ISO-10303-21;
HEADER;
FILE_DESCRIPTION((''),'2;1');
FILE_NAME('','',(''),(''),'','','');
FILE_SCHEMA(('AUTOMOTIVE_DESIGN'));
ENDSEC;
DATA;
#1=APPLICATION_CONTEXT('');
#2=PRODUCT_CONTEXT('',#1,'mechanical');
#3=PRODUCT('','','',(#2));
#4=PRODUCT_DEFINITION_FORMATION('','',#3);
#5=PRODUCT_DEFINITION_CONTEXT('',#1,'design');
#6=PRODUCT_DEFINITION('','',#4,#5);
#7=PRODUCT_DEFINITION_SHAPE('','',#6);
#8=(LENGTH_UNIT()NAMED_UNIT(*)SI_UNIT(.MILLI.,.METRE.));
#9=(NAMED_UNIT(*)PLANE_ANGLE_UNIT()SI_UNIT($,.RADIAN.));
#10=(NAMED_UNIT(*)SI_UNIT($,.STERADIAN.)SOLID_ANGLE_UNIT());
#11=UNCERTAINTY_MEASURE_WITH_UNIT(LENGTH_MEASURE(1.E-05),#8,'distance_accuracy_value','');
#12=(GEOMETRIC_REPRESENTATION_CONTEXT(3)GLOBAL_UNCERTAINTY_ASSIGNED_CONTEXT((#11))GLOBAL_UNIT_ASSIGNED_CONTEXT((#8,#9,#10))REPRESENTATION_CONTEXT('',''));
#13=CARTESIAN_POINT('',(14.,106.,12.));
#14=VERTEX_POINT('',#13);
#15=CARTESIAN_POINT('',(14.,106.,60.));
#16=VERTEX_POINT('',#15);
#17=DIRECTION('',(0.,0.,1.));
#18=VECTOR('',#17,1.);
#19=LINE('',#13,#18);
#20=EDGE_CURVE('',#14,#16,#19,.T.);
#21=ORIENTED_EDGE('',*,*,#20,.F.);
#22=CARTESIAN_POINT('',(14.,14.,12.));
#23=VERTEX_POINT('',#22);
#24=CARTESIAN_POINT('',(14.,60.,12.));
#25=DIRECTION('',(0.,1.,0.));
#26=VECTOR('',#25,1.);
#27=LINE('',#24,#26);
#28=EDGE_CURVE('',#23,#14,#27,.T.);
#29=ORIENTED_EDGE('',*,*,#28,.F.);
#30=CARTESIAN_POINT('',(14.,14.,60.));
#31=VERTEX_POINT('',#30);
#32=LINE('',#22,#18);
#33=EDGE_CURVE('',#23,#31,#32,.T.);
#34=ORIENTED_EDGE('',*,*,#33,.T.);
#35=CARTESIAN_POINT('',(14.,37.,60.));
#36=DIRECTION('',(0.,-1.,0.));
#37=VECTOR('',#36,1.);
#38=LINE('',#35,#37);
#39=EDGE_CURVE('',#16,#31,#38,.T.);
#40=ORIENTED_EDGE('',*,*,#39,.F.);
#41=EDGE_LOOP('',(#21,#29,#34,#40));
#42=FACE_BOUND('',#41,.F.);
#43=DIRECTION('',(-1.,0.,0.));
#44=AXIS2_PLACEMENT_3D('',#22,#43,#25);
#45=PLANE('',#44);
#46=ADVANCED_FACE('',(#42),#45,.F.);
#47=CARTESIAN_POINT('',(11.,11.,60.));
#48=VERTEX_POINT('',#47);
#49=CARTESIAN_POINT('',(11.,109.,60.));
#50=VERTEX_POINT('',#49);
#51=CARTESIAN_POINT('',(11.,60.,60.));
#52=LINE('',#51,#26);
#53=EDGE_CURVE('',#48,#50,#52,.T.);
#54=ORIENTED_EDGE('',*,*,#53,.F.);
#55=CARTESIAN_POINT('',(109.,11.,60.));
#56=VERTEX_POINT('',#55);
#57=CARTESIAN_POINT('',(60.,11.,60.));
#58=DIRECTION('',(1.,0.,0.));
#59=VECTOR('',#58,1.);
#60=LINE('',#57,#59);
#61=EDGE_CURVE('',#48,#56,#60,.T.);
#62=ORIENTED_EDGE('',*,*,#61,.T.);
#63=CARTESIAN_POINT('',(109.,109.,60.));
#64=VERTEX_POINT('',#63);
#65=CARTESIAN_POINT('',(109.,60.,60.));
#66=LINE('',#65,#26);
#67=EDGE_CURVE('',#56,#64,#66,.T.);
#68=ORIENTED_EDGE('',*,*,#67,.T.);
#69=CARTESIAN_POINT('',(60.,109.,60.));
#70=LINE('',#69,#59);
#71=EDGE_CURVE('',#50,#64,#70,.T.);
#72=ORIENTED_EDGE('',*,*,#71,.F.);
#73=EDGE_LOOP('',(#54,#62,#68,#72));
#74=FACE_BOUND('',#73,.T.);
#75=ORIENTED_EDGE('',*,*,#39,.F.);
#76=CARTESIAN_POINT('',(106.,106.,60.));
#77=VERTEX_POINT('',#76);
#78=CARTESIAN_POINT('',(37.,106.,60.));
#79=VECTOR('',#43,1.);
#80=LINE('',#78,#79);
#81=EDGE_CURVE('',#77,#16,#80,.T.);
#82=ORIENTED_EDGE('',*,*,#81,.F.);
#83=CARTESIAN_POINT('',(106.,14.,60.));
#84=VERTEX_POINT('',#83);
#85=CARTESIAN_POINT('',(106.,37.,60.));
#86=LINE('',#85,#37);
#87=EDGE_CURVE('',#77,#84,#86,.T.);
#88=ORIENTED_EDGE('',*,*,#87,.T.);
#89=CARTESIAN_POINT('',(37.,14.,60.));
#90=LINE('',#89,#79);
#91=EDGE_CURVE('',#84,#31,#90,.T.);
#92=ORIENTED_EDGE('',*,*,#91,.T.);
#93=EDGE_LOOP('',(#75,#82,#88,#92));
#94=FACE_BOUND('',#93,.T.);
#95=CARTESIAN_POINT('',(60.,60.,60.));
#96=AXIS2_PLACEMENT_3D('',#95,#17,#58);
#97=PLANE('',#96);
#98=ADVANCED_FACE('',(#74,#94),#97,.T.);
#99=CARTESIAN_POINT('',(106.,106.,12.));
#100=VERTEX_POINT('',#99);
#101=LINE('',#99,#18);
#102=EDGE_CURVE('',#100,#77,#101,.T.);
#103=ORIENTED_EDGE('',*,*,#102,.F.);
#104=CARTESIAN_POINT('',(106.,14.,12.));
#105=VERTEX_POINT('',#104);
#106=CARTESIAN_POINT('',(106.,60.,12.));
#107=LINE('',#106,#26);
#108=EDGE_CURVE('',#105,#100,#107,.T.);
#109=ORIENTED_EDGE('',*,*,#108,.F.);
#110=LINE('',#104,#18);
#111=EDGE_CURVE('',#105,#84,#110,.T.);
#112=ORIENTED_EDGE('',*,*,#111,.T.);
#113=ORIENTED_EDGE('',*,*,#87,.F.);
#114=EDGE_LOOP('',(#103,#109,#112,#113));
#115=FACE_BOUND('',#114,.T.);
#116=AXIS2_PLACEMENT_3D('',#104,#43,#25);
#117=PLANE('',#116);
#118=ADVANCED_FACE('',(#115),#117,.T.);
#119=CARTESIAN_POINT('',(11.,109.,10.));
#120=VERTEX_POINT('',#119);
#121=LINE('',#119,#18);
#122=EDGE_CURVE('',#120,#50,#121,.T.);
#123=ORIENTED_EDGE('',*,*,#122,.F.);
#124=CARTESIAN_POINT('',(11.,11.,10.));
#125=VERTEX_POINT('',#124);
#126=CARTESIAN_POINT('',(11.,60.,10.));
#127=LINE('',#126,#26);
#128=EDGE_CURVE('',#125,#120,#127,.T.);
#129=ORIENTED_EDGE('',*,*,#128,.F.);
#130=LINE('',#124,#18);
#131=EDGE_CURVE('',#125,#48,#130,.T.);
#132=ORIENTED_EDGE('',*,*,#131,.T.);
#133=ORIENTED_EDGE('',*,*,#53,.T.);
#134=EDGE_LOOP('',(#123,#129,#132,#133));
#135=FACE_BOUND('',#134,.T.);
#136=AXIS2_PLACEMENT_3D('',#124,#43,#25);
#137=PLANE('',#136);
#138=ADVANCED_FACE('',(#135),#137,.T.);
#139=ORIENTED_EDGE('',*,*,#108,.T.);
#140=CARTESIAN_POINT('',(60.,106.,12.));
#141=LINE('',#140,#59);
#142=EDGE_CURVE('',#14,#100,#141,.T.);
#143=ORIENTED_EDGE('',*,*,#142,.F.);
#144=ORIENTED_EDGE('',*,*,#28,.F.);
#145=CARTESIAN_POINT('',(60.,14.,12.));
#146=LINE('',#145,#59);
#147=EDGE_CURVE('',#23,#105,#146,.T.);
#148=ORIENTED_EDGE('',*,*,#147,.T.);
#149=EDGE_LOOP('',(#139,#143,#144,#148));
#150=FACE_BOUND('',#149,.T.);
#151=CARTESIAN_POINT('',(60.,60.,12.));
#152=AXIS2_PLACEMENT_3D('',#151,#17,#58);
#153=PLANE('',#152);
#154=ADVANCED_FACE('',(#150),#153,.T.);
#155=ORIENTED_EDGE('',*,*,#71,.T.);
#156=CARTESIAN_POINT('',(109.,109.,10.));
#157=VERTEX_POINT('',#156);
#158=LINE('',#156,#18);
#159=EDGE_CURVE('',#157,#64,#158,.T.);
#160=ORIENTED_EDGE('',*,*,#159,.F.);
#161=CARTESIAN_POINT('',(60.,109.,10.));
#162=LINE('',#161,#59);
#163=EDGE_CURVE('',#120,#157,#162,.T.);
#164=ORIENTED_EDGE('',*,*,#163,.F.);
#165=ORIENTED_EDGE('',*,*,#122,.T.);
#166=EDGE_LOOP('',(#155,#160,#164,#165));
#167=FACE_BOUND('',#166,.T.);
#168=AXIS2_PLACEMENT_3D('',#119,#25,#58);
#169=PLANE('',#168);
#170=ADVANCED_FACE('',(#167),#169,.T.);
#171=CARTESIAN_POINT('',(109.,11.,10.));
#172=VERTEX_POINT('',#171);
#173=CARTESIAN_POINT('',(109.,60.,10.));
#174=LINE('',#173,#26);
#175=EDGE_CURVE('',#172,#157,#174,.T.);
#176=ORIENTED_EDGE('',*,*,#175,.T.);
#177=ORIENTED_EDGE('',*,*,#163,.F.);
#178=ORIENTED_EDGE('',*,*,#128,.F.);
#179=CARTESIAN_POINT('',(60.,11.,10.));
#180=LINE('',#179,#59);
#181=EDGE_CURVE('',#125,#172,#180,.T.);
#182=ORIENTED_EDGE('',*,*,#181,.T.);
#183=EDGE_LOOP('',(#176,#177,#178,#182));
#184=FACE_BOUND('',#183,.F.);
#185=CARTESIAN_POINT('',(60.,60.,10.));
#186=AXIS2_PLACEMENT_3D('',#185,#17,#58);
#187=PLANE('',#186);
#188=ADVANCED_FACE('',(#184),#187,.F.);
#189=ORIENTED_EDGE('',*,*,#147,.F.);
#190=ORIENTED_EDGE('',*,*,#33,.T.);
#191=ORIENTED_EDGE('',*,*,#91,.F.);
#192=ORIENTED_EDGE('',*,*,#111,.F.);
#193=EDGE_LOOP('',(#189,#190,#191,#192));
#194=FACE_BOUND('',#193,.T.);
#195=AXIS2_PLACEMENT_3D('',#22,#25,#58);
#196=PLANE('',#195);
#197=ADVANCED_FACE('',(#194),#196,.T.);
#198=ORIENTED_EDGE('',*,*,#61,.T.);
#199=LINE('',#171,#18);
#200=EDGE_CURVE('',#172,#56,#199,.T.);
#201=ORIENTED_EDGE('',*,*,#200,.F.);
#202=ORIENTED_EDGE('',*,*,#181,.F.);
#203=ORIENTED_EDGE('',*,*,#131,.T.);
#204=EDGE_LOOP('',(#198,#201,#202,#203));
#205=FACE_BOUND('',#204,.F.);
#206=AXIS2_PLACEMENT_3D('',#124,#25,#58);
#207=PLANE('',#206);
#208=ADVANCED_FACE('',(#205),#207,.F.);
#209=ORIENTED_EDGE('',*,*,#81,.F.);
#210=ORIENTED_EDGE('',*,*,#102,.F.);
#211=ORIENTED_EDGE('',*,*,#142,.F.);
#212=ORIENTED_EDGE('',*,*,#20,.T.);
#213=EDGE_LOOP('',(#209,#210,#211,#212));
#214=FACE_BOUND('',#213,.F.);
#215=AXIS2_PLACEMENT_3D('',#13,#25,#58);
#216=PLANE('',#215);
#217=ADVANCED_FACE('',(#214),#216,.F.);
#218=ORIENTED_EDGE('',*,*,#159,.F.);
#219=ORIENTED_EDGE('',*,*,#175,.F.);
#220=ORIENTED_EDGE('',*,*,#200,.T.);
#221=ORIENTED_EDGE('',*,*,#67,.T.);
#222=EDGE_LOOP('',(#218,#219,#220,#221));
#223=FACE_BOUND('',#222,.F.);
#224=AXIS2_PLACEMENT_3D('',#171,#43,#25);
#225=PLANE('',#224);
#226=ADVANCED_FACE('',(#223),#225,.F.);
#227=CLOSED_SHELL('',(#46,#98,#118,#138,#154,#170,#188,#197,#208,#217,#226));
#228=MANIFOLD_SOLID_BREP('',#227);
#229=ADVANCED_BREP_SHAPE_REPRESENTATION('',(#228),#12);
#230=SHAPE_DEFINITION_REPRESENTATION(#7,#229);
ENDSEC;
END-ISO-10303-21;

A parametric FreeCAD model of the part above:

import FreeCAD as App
import Part
import Sketcher

doc = App.newDocument("Part")
body = doc.addObject("PartDesign::Body", "Body")

# Sketch on XY plane
sketch1 = doc.addObject("Sketcher::SketchObject", "Sketch")
body.addObject(sketch1)
sketch1.AttachmentSupport = (doc.XY_Plane, [""])
sketch1.MapMode = "FlatFace"
sketch1.AttachmentOffset = App.Placement(App.Vector(0, 0, 2), App.Rotation())
sketch1.addGeometry([
    Part.LineSegment(App.Vector(14, 106, 0), App.Vector(14, 14, 0)),
    Part.LineSegment(App.Vector(14, 14, 0), App.Vector(106, 14, 0)),
    Part.LineSegment(App.Vector(106, 14, 0), App.Vector(106, 106, 0)),
    Part.LineSegment(App.Vector(106, 106, 0), App.Vector(14, 106, 0)),
], False)
sketch1.addConstraint([
    Sketcher.Constraint("Coincident", 0, 2, 1, 1),
    Sketcher.Constraint("Coincident", 1, 2, 2, 1),
    Sketcher.Constraint("Coincident", 2, 2, 3, 1),
    Sketcher.Constraint("Coincident", 3, 2, 0, 1),
    Sketcher.Constraint("Vertical", 0),
    Sketcher.Constraint("Horizontal", 1),
    Sketcher.Constraint("Vertical", 2),
    Sketcher.Constraint("Horizontal", 3),
    Sketcher.Constraint("Equal", 3, 0),
    Sketcher.Constraint("DistanceX", 1, 1, 1, 2, 92.0),
    Sketcher.Constraint("DistanceX", -1, 1, 0, 2, 14.0),
    Sketcher.Constraint("DistanceY", -1, 1, 0, 2, 14.0),
])
pad1 = doc.addObject("PartDesign::Pad", "Pad")
body.addObject(pad1)
pad1.Profile = sketch1
pad1.Length = 80
body2 = doc.addObject("PartDesign::Body", "Body001")

# Sketch on XY plane
sketch2 = doc.addObject("Sketcher::SketchObject", "Sketch001")
body2.addObject(sketch2)
sketch2.AttachmentSupport = (doc.getObject("XY_Plane001"), [""])
sketch2.MapMode = "FlatFace"
sketch2.addGeometry([
    Part.LineSegment(App.Vector(11, 109, 0), App.Vector(11, 11, 0)),
    Part.LineSegment(App.Vector(11, 11, 0), App.Vector(109, 11, 0)),
    Part.LineSegment(App.Vector(109, 11, 0), App.Vector(109, 109, 0)),
    Part.LineSegment(App.Vector(109, 109, 0), App.Vector(11, 109, 0)),
], False)
sketch2.addConstraint([
    Sketcher.Constraint("Coincident", 0, 2, 1, 1),
    Sketcher.Constraint("Coincident", 1, 2, 2, 1),
    Sketcher.Constraint("Coincident", 2, 2, 3, 1),
    Sketcher.Constraint("Coincident", 3, 2, 0, 1),
    Sketcher.Constraint("Vertical", 0),
    Sketcher.Constraint("Horizontal", 1),
    Sketcher.Constraint("Vertical", 2),
    Sketcher.Constraint("Horizontal", 3),
    Sketcher.Constraint("Equal", 3, 0),
    Sketcher.Constraint("DistanceX", 1, 1, 1, 2, 98.0),
    Sketcher.Constraint("DistanceX", -1, 1, 0, 2, 11.0),
    Sketcher.Constraint("DistanceY", -1, 1, 0, 2, 11.0),
])
pad2 = doc.addObject("PartDesign::Pad", "Pad001")
body2.addObject(pad2)
pad2.Profile = sketch2
pad2.Length = 50
doc.recompute()

boolean = doc.addObject("PartDesign::Boolean", "Boolean")
body2.addObject(boolean)
boolean.Type = "Cut"
boolean.addObjects([body])
body3 = doc.addObject("PartDesign::Body", "Body002")
doc.recompute()

body2.Placement = App.Placement(App.Vector(0, 0, 10), App.Rotation(App.Vector(0, 0, 1), 0))
boolean2 = doc.addObject("PartDesign::Boolean", "Boolean001")
body3.addObject(boolean2)
boolean2.Type = "Fuse"
boolean2.addObjects([body2])

doc.recompute()
